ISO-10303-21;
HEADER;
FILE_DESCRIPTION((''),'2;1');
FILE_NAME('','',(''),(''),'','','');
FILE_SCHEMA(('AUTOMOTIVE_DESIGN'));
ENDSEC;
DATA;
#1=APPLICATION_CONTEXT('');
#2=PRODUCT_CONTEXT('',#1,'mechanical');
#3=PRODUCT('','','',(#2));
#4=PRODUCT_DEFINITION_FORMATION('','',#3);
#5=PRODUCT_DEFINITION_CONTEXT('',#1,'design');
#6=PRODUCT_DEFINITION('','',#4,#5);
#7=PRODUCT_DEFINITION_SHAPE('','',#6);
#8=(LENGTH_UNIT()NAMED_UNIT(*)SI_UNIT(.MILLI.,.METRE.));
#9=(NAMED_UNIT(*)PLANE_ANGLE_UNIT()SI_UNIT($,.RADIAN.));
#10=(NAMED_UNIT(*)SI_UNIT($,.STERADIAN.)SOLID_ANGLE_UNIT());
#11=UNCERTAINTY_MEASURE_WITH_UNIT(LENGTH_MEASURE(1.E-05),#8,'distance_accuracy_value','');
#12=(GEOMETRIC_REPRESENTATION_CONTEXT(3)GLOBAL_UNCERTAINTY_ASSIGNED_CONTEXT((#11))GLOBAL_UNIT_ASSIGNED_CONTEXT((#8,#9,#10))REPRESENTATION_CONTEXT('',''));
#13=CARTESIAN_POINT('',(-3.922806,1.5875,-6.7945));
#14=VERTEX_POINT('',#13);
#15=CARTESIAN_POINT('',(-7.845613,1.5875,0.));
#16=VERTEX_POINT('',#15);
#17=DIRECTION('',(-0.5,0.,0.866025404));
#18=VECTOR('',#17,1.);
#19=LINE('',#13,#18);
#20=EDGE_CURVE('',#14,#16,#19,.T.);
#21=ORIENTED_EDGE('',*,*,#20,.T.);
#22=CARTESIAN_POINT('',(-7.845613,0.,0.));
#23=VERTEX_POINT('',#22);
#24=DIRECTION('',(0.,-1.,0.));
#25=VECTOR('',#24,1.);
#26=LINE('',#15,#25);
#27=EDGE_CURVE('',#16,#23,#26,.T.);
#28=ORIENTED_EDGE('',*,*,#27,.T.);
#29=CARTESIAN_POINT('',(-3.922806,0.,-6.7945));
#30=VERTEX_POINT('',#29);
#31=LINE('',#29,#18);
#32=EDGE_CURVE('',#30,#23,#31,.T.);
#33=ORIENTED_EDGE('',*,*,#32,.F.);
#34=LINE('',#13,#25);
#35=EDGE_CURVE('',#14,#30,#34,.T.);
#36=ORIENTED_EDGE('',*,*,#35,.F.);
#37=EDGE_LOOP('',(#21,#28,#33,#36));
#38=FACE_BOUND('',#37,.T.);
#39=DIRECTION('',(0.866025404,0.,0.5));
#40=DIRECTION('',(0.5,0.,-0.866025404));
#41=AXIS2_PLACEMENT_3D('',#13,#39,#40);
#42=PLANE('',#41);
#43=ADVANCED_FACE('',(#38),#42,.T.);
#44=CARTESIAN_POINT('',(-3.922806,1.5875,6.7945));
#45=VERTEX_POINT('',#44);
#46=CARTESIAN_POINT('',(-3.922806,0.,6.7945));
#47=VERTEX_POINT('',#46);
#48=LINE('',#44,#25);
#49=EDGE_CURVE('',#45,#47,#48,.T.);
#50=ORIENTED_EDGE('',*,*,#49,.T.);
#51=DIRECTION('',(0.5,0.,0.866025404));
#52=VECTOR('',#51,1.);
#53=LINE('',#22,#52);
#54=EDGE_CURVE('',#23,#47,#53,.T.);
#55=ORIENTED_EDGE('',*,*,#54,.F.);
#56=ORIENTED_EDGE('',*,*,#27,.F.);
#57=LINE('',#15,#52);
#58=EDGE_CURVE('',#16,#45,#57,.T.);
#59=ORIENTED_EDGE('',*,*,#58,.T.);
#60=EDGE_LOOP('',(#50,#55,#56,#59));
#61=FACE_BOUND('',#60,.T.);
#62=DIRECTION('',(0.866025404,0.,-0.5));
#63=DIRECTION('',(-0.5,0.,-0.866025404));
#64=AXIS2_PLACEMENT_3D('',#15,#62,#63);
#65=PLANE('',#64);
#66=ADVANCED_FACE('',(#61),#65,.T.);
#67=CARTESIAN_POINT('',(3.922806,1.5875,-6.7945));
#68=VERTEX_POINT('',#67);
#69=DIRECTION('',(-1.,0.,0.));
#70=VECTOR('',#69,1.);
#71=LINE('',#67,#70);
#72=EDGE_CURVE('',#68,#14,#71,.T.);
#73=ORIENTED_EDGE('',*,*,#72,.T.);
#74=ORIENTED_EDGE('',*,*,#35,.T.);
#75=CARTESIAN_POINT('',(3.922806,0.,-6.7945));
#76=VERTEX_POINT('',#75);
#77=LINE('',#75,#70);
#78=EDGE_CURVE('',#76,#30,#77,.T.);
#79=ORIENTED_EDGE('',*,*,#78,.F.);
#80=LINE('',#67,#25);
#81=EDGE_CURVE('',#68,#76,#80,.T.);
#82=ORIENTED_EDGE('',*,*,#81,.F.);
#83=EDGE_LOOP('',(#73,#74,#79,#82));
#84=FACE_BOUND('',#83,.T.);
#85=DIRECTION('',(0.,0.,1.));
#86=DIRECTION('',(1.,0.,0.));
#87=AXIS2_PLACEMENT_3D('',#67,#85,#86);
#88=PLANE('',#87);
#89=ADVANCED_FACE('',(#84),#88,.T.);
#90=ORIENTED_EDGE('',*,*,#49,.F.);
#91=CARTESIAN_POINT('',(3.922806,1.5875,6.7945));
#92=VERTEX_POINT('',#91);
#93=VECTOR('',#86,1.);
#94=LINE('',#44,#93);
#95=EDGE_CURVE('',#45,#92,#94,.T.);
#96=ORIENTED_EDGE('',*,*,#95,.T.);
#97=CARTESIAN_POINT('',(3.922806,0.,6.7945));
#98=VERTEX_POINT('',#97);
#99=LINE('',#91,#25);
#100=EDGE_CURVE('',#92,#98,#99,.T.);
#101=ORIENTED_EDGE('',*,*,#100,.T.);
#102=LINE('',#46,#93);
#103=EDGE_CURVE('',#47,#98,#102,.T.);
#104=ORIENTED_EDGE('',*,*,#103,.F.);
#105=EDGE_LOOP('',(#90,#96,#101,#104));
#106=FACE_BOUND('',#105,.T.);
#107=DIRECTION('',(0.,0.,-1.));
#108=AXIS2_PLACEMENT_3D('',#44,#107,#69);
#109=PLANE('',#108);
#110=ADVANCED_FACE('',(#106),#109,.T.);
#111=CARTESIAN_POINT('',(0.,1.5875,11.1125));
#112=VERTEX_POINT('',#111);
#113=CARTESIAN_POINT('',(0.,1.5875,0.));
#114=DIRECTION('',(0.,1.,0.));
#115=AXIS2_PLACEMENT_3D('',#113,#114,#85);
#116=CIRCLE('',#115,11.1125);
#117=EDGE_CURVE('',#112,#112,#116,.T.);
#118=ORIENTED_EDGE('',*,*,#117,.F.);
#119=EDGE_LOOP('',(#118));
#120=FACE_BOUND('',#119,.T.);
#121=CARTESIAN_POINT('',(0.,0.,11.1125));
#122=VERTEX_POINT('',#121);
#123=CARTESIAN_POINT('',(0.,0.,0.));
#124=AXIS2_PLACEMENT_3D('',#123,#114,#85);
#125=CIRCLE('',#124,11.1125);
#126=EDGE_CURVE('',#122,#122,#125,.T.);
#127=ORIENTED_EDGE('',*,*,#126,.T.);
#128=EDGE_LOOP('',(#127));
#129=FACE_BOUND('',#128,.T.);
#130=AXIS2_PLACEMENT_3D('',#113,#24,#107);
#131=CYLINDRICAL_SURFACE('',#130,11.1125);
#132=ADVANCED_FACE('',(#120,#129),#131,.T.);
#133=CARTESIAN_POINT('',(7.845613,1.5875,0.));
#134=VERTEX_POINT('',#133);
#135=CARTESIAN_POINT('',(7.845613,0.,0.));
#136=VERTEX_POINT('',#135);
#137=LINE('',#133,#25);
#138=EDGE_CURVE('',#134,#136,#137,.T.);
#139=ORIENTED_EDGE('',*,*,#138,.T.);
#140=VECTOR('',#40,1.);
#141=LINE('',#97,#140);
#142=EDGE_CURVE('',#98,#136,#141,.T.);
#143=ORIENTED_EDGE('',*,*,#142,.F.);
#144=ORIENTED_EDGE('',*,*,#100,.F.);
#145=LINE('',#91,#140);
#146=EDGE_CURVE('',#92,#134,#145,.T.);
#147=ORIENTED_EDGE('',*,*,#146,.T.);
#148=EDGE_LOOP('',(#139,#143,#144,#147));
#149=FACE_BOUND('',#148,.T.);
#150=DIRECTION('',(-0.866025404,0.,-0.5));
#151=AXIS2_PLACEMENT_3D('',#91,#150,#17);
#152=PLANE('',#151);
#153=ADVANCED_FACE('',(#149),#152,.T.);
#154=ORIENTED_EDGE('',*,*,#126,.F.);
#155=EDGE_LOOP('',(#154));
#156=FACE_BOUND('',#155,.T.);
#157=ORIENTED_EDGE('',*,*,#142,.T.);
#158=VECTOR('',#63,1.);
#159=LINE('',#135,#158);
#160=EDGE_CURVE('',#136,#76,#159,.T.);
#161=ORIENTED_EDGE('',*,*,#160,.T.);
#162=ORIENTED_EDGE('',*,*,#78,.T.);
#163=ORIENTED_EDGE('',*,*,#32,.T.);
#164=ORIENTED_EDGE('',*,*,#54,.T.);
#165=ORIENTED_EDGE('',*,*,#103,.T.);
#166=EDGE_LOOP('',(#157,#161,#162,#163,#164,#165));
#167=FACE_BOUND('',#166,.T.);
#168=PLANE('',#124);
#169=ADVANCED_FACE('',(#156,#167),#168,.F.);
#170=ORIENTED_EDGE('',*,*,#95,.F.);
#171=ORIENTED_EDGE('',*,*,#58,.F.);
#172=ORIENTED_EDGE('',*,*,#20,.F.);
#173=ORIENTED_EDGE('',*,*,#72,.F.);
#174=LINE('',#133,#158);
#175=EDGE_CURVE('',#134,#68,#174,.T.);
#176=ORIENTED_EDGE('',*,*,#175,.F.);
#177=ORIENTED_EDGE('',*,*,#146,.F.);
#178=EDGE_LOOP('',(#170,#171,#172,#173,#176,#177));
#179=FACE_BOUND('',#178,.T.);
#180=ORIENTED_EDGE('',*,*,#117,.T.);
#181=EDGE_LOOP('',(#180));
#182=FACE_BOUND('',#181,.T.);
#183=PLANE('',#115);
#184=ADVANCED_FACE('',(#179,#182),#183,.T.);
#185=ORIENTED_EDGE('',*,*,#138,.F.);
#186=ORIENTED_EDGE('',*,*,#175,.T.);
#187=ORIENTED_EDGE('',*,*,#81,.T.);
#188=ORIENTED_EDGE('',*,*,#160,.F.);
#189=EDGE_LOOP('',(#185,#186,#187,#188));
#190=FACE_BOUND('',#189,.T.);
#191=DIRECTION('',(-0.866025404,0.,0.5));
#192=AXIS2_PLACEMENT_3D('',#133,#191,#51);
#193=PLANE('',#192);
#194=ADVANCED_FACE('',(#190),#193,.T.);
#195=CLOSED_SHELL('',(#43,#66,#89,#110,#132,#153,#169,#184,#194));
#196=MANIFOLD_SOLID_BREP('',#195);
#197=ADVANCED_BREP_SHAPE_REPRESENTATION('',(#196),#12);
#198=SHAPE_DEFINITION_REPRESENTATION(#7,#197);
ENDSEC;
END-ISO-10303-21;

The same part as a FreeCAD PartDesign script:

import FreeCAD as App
import Part
import Sketcher
Q = App.Units.Quantity


def add_polygon(sketch, points):
    """Adds a closed chain of lines whose ends are joined by coincident constraints."""
    first, n = sketch.GeometryCount, len(points)
    for a, b in zip(points, points[1:] + points[:1]):
        sketch.addGeometry(Part.LineSegment(App.Vector(*a, 0), App.Vector(*b, 0)), False)
    for i in range(n):
        sketch.addConstraint(Sketcher.Constraint("Coincident", first + i, 2, first + (i + 1) % n, 1))

doc = App.newDocument("Part")
params = doc.addObject("Spreadsheet::Sheet", "Params")
for row, (alias, value) in enumerate([
    ("sketch1_diameter", "0.875 in"),
    ("pad1_length", "0.0625 in"),
], start=1):
    params.set(f"A{row}", alias)
    params.set(f"B{row}", "=" + value)
    params.setAlias(f"B{row}", alias)

body = doc.addObject("PartDesign::Body", "Body")

# Sketch on XZ plane
sketch1 = body.newObject("Sketcher::SketchObject", "Sketch")
sketch1.AttachmentSupport = (doc.getObject("XZ_Plane"), [""])
sketch1.MapMode = "FlatFace"
sketch1.addGeometry(Part.Circle(App.Vector(0, 0, 0), App.Vector(0, 0, 1), 11), False)  # 0
add_polygon(sketch1, [(4, -7), (8, 0), (4, 7), (-4, 7), (-8, 0), (-4, -7)])  # lines 1-6
sketch1.addConstraint(Sketcher.Constraint("Horizontal", 3))
sketch1.addConstraint(Sketcher.Constraint("Horizontal", 6))
sketch1.addConstraint(Sketcher.Constraint("Coincident", 0, 3, -1, 1))
sketch1.addConstraint(Sketcher.Constraint("Symmetric", 1, 2, 4, 2, -1, 1))
sketch1.addConstraint(Sketcher.Constraint("Symmetric", 2, 2, 5, 2, -1, 1))
sketch1.addConstraint(Sketcher.Constraint("PointOnObject", 1, 2, -1))
sketch1.addConstraint(Sketcher.Constraint("Parallel", 1, 4))
sketch1.addConstraint(Sketcher.Constraint("Vertical", 3, 2, 5, 2))
sketch1.addConstraint(Sketcher.Constraint("Diameter", 0, Q("0.875 in")))
sketch1.addConstraint(Sketcher.Constraint("Angle", 1, Q("60 deg")))
sketch1.addConstraint(Sketcher.Constraint("DistanceY", 5, 2, 3, 2, Q("0.535 in")))
sketch1.addConstraint(Sketcher.Constraint("DistanceX", 3, 2, 3, 1, Q("7.845613 mm")))
sketch1.setExpression("Constraints[14]", "Params.sketch1_diameter")
pad1 = body.newObject("PartDesign::Pad", "Pad")
pad1.Profile = sketch1
pad1.setExpression("Length", "Params.pad1_length")
pad1.Reversed = True

doc.recompute()
